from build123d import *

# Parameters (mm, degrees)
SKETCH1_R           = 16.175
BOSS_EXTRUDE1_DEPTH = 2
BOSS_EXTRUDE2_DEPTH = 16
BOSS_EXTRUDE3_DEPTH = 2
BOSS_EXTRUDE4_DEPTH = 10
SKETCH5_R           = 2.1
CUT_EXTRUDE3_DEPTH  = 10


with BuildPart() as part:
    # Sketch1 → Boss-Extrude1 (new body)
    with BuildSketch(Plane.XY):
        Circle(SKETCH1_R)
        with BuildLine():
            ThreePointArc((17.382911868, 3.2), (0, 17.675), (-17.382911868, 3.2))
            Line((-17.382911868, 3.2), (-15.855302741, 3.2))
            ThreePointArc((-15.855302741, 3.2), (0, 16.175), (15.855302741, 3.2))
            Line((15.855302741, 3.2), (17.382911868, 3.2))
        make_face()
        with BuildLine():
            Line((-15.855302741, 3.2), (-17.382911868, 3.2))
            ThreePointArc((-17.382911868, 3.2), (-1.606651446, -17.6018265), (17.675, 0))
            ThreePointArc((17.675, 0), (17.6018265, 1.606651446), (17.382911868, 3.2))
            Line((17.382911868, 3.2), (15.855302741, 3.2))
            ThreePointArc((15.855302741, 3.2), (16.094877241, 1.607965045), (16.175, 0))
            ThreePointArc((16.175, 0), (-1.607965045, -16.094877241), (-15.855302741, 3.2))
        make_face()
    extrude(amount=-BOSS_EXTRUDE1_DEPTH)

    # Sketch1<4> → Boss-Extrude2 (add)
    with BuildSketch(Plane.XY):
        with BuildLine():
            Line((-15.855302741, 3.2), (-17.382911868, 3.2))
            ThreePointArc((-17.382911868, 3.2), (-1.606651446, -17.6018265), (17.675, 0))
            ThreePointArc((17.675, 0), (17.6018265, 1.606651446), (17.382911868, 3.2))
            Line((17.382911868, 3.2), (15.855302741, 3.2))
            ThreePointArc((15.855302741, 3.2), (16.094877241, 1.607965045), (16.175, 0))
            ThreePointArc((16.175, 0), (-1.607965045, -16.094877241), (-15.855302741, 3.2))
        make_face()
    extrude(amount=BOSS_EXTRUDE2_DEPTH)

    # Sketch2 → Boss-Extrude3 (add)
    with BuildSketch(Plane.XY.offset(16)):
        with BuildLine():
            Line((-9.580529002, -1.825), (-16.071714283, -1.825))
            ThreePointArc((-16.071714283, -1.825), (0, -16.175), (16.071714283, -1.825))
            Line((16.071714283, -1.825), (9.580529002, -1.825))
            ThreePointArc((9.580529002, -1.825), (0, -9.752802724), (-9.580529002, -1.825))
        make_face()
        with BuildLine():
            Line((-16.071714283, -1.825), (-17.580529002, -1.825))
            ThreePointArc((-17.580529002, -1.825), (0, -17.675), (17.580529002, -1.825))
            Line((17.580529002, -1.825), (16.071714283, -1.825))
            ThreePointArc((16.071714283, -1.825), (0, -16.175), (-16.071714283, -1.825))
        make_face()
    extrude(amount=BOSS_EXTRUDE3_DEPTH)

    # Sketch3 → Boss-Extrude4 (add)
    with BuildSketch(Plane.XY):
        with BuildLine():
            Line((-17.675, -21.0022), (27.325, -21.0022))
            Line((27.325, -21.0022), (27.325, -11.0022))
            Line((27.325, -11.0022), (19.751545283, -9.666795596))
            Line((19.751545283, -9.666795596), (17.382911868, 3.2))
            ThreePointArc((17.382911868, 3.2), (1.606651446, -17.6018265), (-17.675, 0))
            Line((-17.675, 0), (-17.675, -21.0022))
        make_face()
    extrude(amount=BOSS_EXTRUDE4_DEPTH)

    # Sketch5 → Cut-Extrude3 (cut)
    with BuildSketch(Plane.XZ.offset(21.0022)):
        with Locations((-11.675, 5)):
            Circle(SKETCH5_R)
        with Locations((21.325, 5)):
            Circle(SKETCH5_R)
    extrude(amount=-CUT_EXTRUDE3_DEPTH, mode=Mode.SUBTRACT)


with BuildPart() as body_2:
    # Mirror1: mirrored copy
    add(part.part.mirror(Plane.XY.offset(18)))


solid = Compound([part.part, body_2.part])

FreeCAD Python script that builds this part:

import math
import FreeCAD as App
import Part
import Sketcher
Q = App.Units.Quantity

doc = App.newDocument("Part")
params = doc.addObject("Spreadsheet::Sheet", "Params")
for row, (alias, value) in enumerate([
    ("pad1_length", "2 mm"),
    ("pad2_length", "16 mm"),
    ("sketch3_width", "8 mm"),
    ("pad3_length", "2 mm"),
    ("sketch4_width", "45 mm"),
    ("sketch4_height", "10 mm"),
    ("pad4_length", "10 mm"),
    ("sketch5_diameter", "4.2 mm"),
    ("pocket1_length", "10 mm"),
], start=1):
    params.set(f"A{row}", alias)
    params.set(f"B{row}", "=" + value)
    params.setAlias(f"B{row}", alias)

body = doc.addObject("PartDesign::Body", "Body")

# Sketch on XY plane
sketch1 = doc.addObject("Sketcher::SketchObject", "Sketch")
body.addObject(sketch1)
sketch1.AttachmentSupport = (doc.XY_Plane, [""])
sketch1.MapMode = "FlatFace"
sketch1.addGeometry([
    Part.ArcOfCircle(Part.Circle(App.Vector(0, 0, 0), App.Vector(0, 0, 1), 17.7), math.radians(10), math.radians(170)),
    Part.ArcOfCircle(Part.Circle(App.Vector(0, 0, 0), App.Vector(0, 0, 1), 17.7), math.radians(170), math.radians(360)),
    Part.ArcOfCircle(Part.Circle(App.Vector(0, 0, 0), App.Vector(0, 0, 1), 17.7), math.radians(0), math.radians(10.43)),
], False)
sketch1.addConstraint([
    Sketcher.Constraint("Tangent", 0, 2, 1, 1),
    Sketcher.Constraint("Tangent", 1, 2, 2, 1),
    Sketcher.Constraint("Tangent", 2, 2, 0, 1),
    Sketcher.Constraint("Coincident", 0, 3, -1, 1),
    Sketcher.Constraint("PointOnObject", 1, 2, -1),
    Sketcher.Constraint("Horizontal", 0, 2, 2, 2),
    Sketcher.Constraint("Radius", 0, Q("17.675 mm")),
    Sketcher.Constraint("DistanceY", -1, 1, 0, 2, Q("3.2 mm")),
])
pad1 = doc.addObject("PartDesign::Pad", "Pad")
body.addObject(pad1)
pad1.Profile = sketch1
pad1.setExpression("Length", "Params.pad1_length")
pad1.Reversed = True

# Sketch on XY plane
sketch2 = doc.addObject("Sketcher::SketchObject", "Sketch001")
body.addObject(sketch2)
sketch2.AttachmentSupport = (doc.XY_Plane, [""])
sketch2.MapMode = "FlatFace"
sketch2.addGeometry([
    Part.LineSegment(App.Vector(-15.9, 3.2, 0), App.Vector(-17.4, 3.2, 0)),  # 0
    Part.ArcOfCircle(Part.Circle(App.Vector(0, 0, 0), App.Vector(0, 0, 1), 17.7), math.radians(170), math.radians(360)),  # 1
    Part.ArcOfCircle(Part.Circle(App.Vector(0, 0, 0), App.Vector(0, 0, 1), 17.7), math.radians(0), math.radians(10.43)),  # 2
    Part.LineSegment(App.Vector(17.4, 3.2, 0), App.Vector(15.9, 3.2, 0)),  # 3
    Part.ArcOfCircle(Part.Circle(App.Vector(0, 0, 0), App.Vector(0, 0, 1), 16.2), math.radians(0), math.radians(11.41)),  # 4
    Part.ArcOfCircle(Part.Circle(App.Vector(0, 0, 0), App.Vector(0, 0, 1), 16.2), math.radians(169), math.radians(360)),  # 5
], False)
sketch2.addConstraint([
    Sketcher.Constraint("Coincident", 0, 2, 1, 1),
    Sketcher.Constraint("Tangent", 1, 2, 2, 1),
    Sketcher.Constraint("Coincident", 2, 2, 3, 1),
    Sketcher.Constraint("Coincident", 3, 2, 4, 2),
    Sketcher.Constraint("Tangent", 4, 1, 5, 2),
    Sketcher.Constraint("Coincident", 5, 1, 0, 1),
    Sketcher.Constraint("Horizontal", 0),
    Sketcher.Constraint("Horizontal", 3),
    Sketcher.Constraint("Coincident", 1, 3, -1, 1),
    Sketcher.Constraint("Coincident", 4, 3, -1, 1),
    Sketcher.Constraint("Equal", 1, 2),
    Sketcher.Constraint("Equal", 4, 5),
    Sketcher.Constraint("PointOnObject", 1, 2, -1),
    Sketcher.Constraint("PointOnObject", 4, 1, -1),
    Sketcher.Constraint("Horizontal", 0, 2, 2, 2),
    Sketcher.Constraint("Radius", 1, Q("17.675 mm")),
    Sketcher.Constraint("Radius", 4, Q("16.175 mm")),
    Sketcher.Constraint("DistanceY", -1, 1, 0, 2, Q("3.2 mm")),
])
pad2 = doc.addObject("PartDesign::Pad", "Pad001")
body.addObject(pad2)
pad2.Profile = sketch2
pad2.setExpression("Length", "Params.pad2_length")

# Sketch on XY plane
sketch3 = doc.addObject("Sketcher::SketchObject", "Sketch002")
body.addObject(sketch3)
sketch3.AttachmentSupport = (doc.XY_Plane, [""])
sketch3.MapMode = "FlatFace"
sketch3.AttachmentOffset = App.Placement(App.Vector(0, 0, 16), App.Rotation())
sketch3.addGeometry([
    Part.LineSegment(App.Vector(-10, -2, 0), App.Vector(-18, -2, 0)),
    Part.ArcOfCircle(Part.Circle(App.Vector(0, 0, 0), App.Vector(0, 0, 1), 18), math.radians(-174), math.radians(-6)),
    Part.LineSegment(App.Vector(18, -2, 0), App.Vector(10, -2, 0)),
    Part.ArcOfCircle(Part.Circle(App.Vector(0, 0, 0), App.Vector(0, 0, 1), 10), math.radians(-169), math.radians(-11)),
], False)
sketch3.addConstraint([
    Sketcher.Constraint("Coincident", 0, 2, 1, 1),
    Sketcher.Constraint("Coincident", 1, 2, 2, 1),
    Sketcher.Constraint("Coincident", 2, 2, 3, 2),
    Sketcher.Constraint("Coincident", 3, 1, 0, 1),
    Sketcher.Constraint("Horizontal", 0),
    Sketcher.Constraint("Horizontal", 2),
    Sketcher.Constraint("Coincident", 1, 3, -1, 1),
    Sketcher.Constraint("Coincident", 3, 3, -1, 1),
    Sketcher.Constraint("Horizontal", 0, 2, 1, 2),
    Sketcher.Constraint("DistanceX", 0, 2, 0, 1, Q("8 mm")),
    Sketcher.Constraint("Radius", 1, Q("17.675 mm")),
    Sketcher.Constraint("DistanceY", 0, 2, -1, 1, Q("1.825 mm")),
])
sketch3.setExpression("Constraints[9]", "Params.sketch3_width")
pad3 = doc.addObject("PartDesign::Pad", "Pad002")
body.addObject(pad3)
pad3.Profile = sketch3
pad3.setExpression("Length", "Params.pad3_length")

# Sketch on XY plane
sketch4 = doc.addObject("Sketcher::SketchObject", "Sketch003")
body.addObject(sketch4)
sketch4.AttachmentSupport = (doc.XY_Plane, [""])
sketch4.MapMode = "FlatFace"
sketch4.addGeometry([
    Part.LineSegment(App.Vector(-18, -21, 0), App.Vector(27, -21, 0)),  # 0
    Part.LineSegment(App.Vector(27, -21, 0), App.Vector(27, -11, 0)),  # 1
    Part.LineSegment(App.Vector(27, -11, 0), App.Vector(20, -10, 0)),  # 2
    Part.LineSegment(App.Vector(20, -10, 0), App.Vector(17, 3, 0)),  # 3
    Part.ArcOfCircle(Part.Circle(App.Vector(0, 0, 0), App.Vector(0, 0, 1), 18), math.radians(180), math.radians(370)),  # 4
    Part.LineSegment(App.Vector(-18, 0, 0), App.Vector(-18, -21, 0)),  # 5
], False)
sketch4.addConstraint([
    Sketcher.Constraint("Coincident", 0, 2, 1, 1),
    Sketcher.Constraint("Coincident", 1, 2, 2, 1),
    Sketcher.Constraint("Coincident", 2, 2, 3, 1),
    Sketcher.Constraint("Tangent", 3, 2, 4, 2),
    Sketcher.Constraint("Tangent", 4, 1, 5, 1),
    Sketcher.Constraint("Coincident", 5, 2, 0, 1),
    Sketcher.Constraint("Horizontal", 0),
    Sketcher.Constraint("Vertical", 1),
    Sketcher.Constraint("Vertical", 5),
    Sketcher.Constraint("Coincident", 4, 3, -1, 1),
    Sketcher.Constraint("DistanceX", 0, 1, 0, 2, Q("45 mm")),
    Sketcher.Constraint("DistanceY", 1, 1, 1, 2, Q("10 mm")),
    Sketcher.Constraint("Angle", 2, Q("170 deg")),
    Sketcher.Constraint("Radius", 4, Q("17.675 mm")),
    Sketcher.Constraint("DistanceY", -1, 1, 3, 2, Q("3.2 mm")),
    Sketcher.Constraint("Distance", 3, Q("13.082999 mm")),
])
sketch4.setExpression("Constraints[10]", "Params.sketch4_width")
sketch4.setExpression("Constraints[11]", "Params.sketch4_height")
pad4 = doc.addObject("PartDesign::Pad", "Pad003")
body.addObject(pad4)
pad4.Profile = sketch4
pad4.setExpression("Length", "Params.pad4_length")

# Sketch on XZ plane
sketch5 = doc.addObject("Sketcher::SketchObject", "Sketch004")
body.addObject(sketch5)
sketch5.AttachmentSupport = (doc.XZ_Plane, [""])
sketch5.MapMode = "FlatFace"
sketch5.AttachmentOffset = App.Placement(App.Vector(0, 0, 21.0022), App.Rotation())
sketch5.addGeometry([
    Part.Circle(App.Vector(-11.7, 5, 0), App.Vector(0, 0, 1), 2.1),
    Part.Circle(App.Vector(21.3, 5, 0), App.Vector(0, 0, 1), 2.1),
], False)
sketch5.addConstraint([
    Sketcher.Constraint("Equal", 0, 1),
    Sketcher.Constraint("Horizontal", 0, 3, 1, 3),
    Sketcher.Constraint("Diameter", 0, Q("4.2 mm")),
    Sketcher.Constraint("DistanceY", -1, 1, 0, 3, Q("5 mm")),
    Sketcher.Constraint("DistanceX", 0, 3, 1, 3, Q("33 mm")),
    Sketcher.Constraint("DistanceX", 0, 3, -1, 1, Q("11.675 mm")),
])
sketch5.setExpression("Constraints[2]", "Params.sketch5_diameter")
pocket1 = doc.addObject("PartDesign::Pocket", "Pocket")
body.addObject(pocket1)
pocket1.Profile = sketch5
pocket1.setExpression("Length", "Params.pocket1_length")
body2 = doc.addObject("PartDesign::Body", "Body001")
doc.recompute()

mirroring = doc.addObject("Part::Mirroring", "Mirroring")
mirroring.Source = body
mirroring.Base = App.Vector(0, 0, 18)
mirroring.Normal = App.Vector(0, 0, 1)
body2.BaseFeature = mirroring
doc.recompute()
mirroring.Visibility = False

doc.recompute()
